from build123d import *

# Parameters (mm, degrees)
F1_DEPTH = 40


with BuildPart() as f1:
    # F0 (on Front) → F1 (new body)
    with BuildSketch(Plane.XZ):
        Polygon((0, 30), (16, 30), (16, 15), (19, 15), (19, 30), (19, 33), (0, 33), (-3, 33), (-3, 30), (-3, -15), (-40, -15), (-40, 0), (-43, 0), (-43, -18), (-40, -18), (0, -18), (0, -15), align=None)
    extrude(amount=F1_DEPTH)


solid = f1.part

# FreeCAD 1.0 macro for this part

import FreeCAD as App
import Part
import Sketcher
from FreeCAD import Vector


def add_polygon(sketch, points):
    """Adds a closed chain of lines whose ends are joined by coincident constraints."""
    first, n = sketch.GeometryCount, len(points)
    for a, b in zip(points, points[1:] + points[:1]):
        sketch.addGeometry(Part.LineSegment(App.Vector(*a, 0), App.Vector(*b, 0)), False)
    for i in range(n):
        sketch.addConstraint(Sketcher.Constraint("Coincident", first + i, 2, first + (i + 1) % n, 1))

doc = App.newDocument("Part")
body = doc.addObject("PartDesign::Body", "Body")

# Sketch on XZ plane
sketch1 = doc.addObject("Sketcher::SketchObject", "Sketch")
body.addObject(sketch1)
sketch1.AttachmentSupport = (doc.XZ_Plane, [""])
sketch1.MapMode = "FlatFace"
add_polygon(sketch1, [(0, 30), (16, 30), (16, 15), (19, 15), (19, 33), (-3, 33), (-3, -15), (-40, -15), (-40, 0), (-43, 0), (-43, -18), (0, -18)])  # lines 0-11
sketch1.addConstraint([
    Sketcher.Constraint("Horizontal", 0),
    Sketcher.Constraint("Vertical", 1),
    Sketcher.Constraint("Horizontal", 2),
    Sketcher.Constraint("Vertical", 3),
    Sketcher.Constraint("Horizontal", 4),
    Sketcher.Constraint("Vertical", 5),
    Sketcher.Constraint("Horizontal", 6),
    Sketcher.Constraint("Vertical", 7),
    Sketcher.Constraint("Horizontal", 8),
    Sketcher.Constraint("Vertical", 9),
    Sketcher.Constraint("Horizontal", 10),
    Sketcher.Constraint("Vertical", 11),
    Sketcher.Constraint("PointOnObject", 7, 2, -1),
    Sketcher.Constraint("PointOnObject", 10, 2, -2),
    Sketcher.Constraint("Equal", 2, 8),
    Sketcher.Constraint("Equal", 1, 7),
    Sketcher.Constraint("Equal", 3, 9),
    Sketcher.Constraint("DistanceX", 0, 1, 0, 2, 16.0),
    Sketcher.Constraint("DistanceX", 2, 1, 2, 2, 3.0),
    Sketcher.Constraint("DistanceX", 4, 2, 4, 1, 22.0),
    Sketcher.Constraint("DistanceX", 6, 2, 6, 1, 37.0),
    Sketcher.Constraint("DistanceY", 1, 2, 1, 1, 15.0),
    Sketcher.Constraint("DistanceY", 3, 1, 3, 2, 18.0),
    Sketcher.Constraint("DistanceY", 5, 2, 5, 1, 48.0),
])
pad1 = doc.addObject("PartDesign::Pad", "Pad")
body.addObject(pad1)
pad1.Profile = sketch1
pad1.Length = 40

doc.recompute()
